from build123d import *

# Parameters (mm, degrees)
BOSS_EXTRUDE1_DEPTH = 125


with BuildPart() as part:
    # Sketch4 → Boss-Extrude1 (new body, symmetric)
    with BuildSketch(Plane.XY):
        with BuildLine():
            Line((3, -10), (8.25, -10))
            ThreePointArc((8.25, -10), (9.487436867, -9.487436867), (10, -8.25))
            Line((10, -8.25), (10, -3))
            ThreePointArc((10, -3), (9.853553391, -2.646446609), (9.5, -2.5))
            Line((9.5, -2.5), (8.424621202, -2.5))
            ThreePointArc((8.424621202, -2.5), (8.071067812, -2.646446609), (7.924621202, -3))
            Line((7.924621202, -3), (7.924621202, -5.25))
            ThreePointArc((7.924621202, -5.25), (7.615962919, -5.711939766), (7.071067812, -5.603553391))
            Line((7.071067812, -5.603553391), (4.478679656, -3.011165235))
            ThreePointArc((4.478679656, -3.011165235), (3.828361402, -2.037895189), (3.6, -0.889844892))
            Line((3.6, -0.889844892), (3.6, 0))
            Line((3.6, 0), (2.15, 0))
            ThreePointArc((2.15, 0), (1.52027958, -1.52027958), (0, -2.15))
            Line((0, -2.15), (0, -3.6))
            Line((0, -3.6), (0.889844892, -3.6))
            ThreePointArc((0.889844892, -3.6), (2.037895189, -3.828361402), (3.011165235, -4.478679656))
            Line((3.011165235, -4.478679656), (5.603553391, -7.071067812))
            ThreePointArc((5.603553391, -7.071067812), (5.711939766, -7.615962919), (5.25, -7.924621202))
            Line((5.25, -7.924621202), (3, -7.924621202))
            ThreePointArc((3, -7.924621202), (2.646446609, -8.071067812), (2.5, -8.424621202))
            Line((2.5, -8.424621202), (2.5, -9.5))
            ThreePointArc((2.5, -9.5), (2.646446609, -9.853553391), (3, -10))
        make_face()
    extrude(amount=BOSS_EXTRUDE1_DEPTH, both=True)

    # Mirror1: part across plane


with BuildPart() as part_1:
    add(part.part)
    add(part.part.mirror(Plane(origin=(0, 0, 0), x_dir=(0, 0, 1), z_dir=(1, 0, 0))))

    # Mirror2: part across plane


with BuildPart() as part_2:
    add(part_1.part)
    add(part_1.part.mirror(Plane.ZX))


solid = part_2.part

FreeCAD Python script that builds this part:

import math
import FreeCAD as App
import Part
import Sketcher
Q = App.Units.Quantity

doc = App.newDocument("Part")
body = doc.addObject("PartDesign::Body", "Body")

# Sketch on XY plane
sketch1 = body.newObject("Sketcher::SketchObject", "Sketch")
sketch1.AttachmentSupport = (doc.getObject("XY_Plane"), [""])
sketch1.MapMode = "FlatFace"
sketch1.addGeometry([
    Part.LineSegment(App.Vector(3, -10, 0), App.Vector(8.25, -10, 0)),  # 0
    Part.ArcOfCircle(Part.Circle(App.Vector(8.25, -8.25, 0), App.Vector(0, 0, 1), 1.75), math.radians(-90), math.radians(0)),  # 1
    Part.LineSegment(App.Vector(10, -8.25, 0), App.Vector(10, -3, 0)),  # 2
    Part.ArcOfCircle(Part.Circle(App.Vector(9.5, -3, 0), App.Vector(0, 0, 1), 0.5), math.radians(0), math.radians(90)),  # 3
    Part.LineSegment(App.Vector(9.5, -2.5, 0), App.Vector(8.42, -2.5, 0)),  # 4
    Part.ArcOfCircle(Part.Circle(App.Vector(8.42, -3, 0), App.Vector(0, 0, 1), 0.5), math.radians(90), math.radians(180)),  # 5
    Part.LineSegment(App.Vector(7.92, -3, 0), App.Vector(7.92, -5.25, 0)),  # 6
    Part.ArcOfCircle(Part.Circle(App.Vector(7.42, -5.25, 0), App.Vector(0, 0, 1), 0.5), math.radians(-135), math.radians(0)),  # 7
    Part.LineSegment(App.Vector(7.07, -5.6, 0), App.Vector(4.48, -3.01, 0)),  # 8
    Part.ArcOfCircle(Part.Circle(App.Vector(6.6, -0.89, 0), App.Vector(0, 0, 1), 3), math.radians(180), math.radians(225)),  # 9
    Part.LineSegment(App.Vector(3.6, -0.89, 0), App.Vector(3.6, 0, 0)),  # 10
    Part.LineSegment(App.Vector(3.6, 0, 0), App.Vector(2.15, 0, 0)),  # 11
    Part.ArcOfCircle(Part.Circle(App.Vector(0, 0, 0), App.Vector(0, 0, 1), 2.15), math.radians(-90), math.radians(0)),  # 12
    Part.LineSegment(App.Vector(0, -2.15, 0), App.Vector(0, -3.6, 0)),  # 13
    Part.LineSegment(App.Vector(0, -3.6, 0), App.Vector(0.89, -3.6, 0)),  # 14
    Part.ArcOfCircle(Part.Circle(App.Vector(0.89, -6.6, 0), App.Vector(0, 0, 1), 3), math.radians(45), math.radians(90)),  # 15
    Part.LineSegment(App.Vector(3.01, -4.48, 0), App.Vector(5.6, -7.07, 0)),  # 16
    Part.ArcOfCircle(Part.Circle(App.Vector(5.25, -7.42, 0), App.Vector(0, 0, 1), 0.5), math.radians(-90), math.radians(45)),  # 17
    Part.LineSegment(App.Vector(5.25, -7.92, 0), App.Vector(3, -7.92, 0)),  # 18
    Part.ArcOfCircle(Part.Circle(App.Vector(3, -8.42, 0), App.Vector(0, 0, 1), 0.5), math.radians(90), math.radians(180)),  # 19
    Part.LineSegment(App.Vector(2.5, -8.42, 0), App.Vector(2.5, -9.5, 0)),  # 20
    Part.ArcOfCircle(Part.Circle(App.Vector(3, -9.5, 0), App.Vector(0, 0, 1), 0.5), math.radians(180), math.radians(270)),  # 21
], False)
sketch1.addConstraint([
    Sketcher.Constraint("Tangent", 0, 2, 1, 1),
    Sketcher.Constraint("Tangent", 1, 2, 2, 1),
    Sketcher.Constraint("Tangent", 2, 2, 3, 1),
    Sketcher.Constraint("Tangent", 3, 2, 4, 1),
    Sketcher.Constraint("Tangent", 4, 2, 5, 1),
    Sketcher.Constraint("Tangent", 5, 2, 6, 1),
    Sketcher.Constraint("Tangent", 6, 2, 7, 2),
    Sketcher.Constraint("Tangent", 7, 1, 8, 1),
    Sketcher.Constraint("Tangent", 8, 2, 9, 2),
    Sketcher.Constraint("Tangent", 9, 1, 10, 1),
    Sketcher.Constraint("Coincident", 10, 2, 11, 1),
    Sketcher.Constraint("Coincident", 11, 2, 12, 2),
    Sketcher.Constraint("Coincident", 12, 1, 13, 1),
    Sketcher.Constraint("Coincident", 13, 2, 14, 1),
    Sketcher.Constraint("Tangent", 14, 2, 15, 2),
    Sketcher.Constraint("Tangent", 15, 1, 16, 1),
    Sketcher.Constraint("Tangent", 16, 2, 17, 2),
    Sketcher.Constraint("Tangent", 17, 1, 18, 1),
    Sketcher.Constraint("Tangent", 18, 2, 19, 1),
    Sketcher.Constraint("Tangent", 19, 2, 20, 1),
    Sketcher.Constraint("Tangent", 20, 2, 21, 1),
    Sketcher.Constraint("Tangent", 21, 2, 0, 1),
    Sketcher.Constraint("Horizontal", 0),
    Sketcher.Constraint("Vertical", 2),
    Sketcher.Constraint("Horizontal", 4),
    Sketcher.Constraint("Vertical", 6),
    Sketcher.Constraint("Vertical", 10),
    Sketcher.Constraint("Horizontal", 11),
    Sketcher.Constraint("Vertical", 13),
    Sketcher.Constraint("Horizontal", 14),
    Sketcher.Constraint("Horizontal", 18),
    Sketcher.Constraint("Vertical", 20),
    Sketcher.Constraint("Coincident", 12, 3, -1, 1),
    Sketcher.Constraint("Equal", 3, 5),
    Sketcher.Constraint("Equal", 5, 7),
    Sketcher.Constraint("Equal", 9, 15),
    Sketcher.Constraint("Equal", 7, 17),
    Sketcher.Constraint("Equal", 17, 19),
    Sketcher.Constraint("Equal", 19, 21),
    Sketcher.Constraint("PointOnObject", 10, 2, -1),
    Sketcher.Constraint("PointOnObject", 12, 1, -2),
    Sketcher.Constraint("Parallel", 8, 16),
    Sketcher.Constraint("Equal", 0, 2),
    Sketcher.Constraint("Equal", 18, 6),
    Sketcher.Constraint("Equal", 14, 10),
    Sketcher.Constraint("Equal", 11, 13),
    Sketcher.Constraint("Equal", 4, 20),
    Sketcher.Constraint("Equal", 8, 16),
    Sketcher.Constraint("Radius", 9, Q("3 mm")),
    Sketcher.Constraint("Radius", 3, Q("0.5 mm")),
    Sketcher.Constraint("Radius", 1, Q("1.75 mm")),
    Sketcher.Constraint("Radius", 12, Q("2.15 mm")),
    Sketcher.Constraint("DistanceY", 3, 3, -1, 1, Q("3 mm")),
    Sketcher.Constraint("DistanceY", 0, 2, -1, 1, Q("10 mm")),
    Sketcher.Constraint("DistanceY", 1, 3, 7, 3, Q("3 mm")),
    Sketcher.Constraint("DistanceX", 11, 2, 11, 1, Q("1.45 mm")),
    Sketcher.Constraint("DistanceX", 4, 2, 4, 1, Q("1.075379 mm")),
])
pad1 = body.newObject("PartDesign::Pad", "Pad")
pad1.Profile = sketch1
pad1.Length = 250
pad1.Midplane = True
body2 = doc.addObject("PartDesign::Body", "Body001")
doc.recompute()

body2.BaseFeature = body
doc.recompute()

mirroring = doc.addObject("Part::Mirroring", "Mirroring")
mirroring.Source = body
mirroring.Base = App.Vector(0, 0, 0)
mirroring.Normal = App.Vector(1, 0, 0)
body3 = doc.addObject("PartDesign::Body", "Body002")
body3.BaseFeature = mirroring
boolean = body2.newObject("PartDesign::Boolean", "Boolean")
boolean.Type = "Fuse"
boolean.addObjects([body3])
doc.recompute()
body4 = doc.addObject("PartDesign::Body", "Body003")
doc.recompute()

body4.BaseFeature = body2
doc.recompute()

mirroring2 = doc.addObject("Part::Mirroring", "Mirroring001")
mirroring2.Source = body2
mirroring2.Base = App.Vector(0, 0, 0)
mirroring2.Normal = App.Vector(0, 1, 0)
body5 = doc.addObject("PartDesign::Body", "Body004")
body5.BaseFeature = mirroring2
boolean2 = body4.newObject("PartDesign::Boolean", "Boolean001")
boolean2.Type = "Fuse"
boolean2.addObjects([body5])
doc.recompute()
mirroring.Visibility = False
mirroring2.Visibility = False

doc.recompute()
